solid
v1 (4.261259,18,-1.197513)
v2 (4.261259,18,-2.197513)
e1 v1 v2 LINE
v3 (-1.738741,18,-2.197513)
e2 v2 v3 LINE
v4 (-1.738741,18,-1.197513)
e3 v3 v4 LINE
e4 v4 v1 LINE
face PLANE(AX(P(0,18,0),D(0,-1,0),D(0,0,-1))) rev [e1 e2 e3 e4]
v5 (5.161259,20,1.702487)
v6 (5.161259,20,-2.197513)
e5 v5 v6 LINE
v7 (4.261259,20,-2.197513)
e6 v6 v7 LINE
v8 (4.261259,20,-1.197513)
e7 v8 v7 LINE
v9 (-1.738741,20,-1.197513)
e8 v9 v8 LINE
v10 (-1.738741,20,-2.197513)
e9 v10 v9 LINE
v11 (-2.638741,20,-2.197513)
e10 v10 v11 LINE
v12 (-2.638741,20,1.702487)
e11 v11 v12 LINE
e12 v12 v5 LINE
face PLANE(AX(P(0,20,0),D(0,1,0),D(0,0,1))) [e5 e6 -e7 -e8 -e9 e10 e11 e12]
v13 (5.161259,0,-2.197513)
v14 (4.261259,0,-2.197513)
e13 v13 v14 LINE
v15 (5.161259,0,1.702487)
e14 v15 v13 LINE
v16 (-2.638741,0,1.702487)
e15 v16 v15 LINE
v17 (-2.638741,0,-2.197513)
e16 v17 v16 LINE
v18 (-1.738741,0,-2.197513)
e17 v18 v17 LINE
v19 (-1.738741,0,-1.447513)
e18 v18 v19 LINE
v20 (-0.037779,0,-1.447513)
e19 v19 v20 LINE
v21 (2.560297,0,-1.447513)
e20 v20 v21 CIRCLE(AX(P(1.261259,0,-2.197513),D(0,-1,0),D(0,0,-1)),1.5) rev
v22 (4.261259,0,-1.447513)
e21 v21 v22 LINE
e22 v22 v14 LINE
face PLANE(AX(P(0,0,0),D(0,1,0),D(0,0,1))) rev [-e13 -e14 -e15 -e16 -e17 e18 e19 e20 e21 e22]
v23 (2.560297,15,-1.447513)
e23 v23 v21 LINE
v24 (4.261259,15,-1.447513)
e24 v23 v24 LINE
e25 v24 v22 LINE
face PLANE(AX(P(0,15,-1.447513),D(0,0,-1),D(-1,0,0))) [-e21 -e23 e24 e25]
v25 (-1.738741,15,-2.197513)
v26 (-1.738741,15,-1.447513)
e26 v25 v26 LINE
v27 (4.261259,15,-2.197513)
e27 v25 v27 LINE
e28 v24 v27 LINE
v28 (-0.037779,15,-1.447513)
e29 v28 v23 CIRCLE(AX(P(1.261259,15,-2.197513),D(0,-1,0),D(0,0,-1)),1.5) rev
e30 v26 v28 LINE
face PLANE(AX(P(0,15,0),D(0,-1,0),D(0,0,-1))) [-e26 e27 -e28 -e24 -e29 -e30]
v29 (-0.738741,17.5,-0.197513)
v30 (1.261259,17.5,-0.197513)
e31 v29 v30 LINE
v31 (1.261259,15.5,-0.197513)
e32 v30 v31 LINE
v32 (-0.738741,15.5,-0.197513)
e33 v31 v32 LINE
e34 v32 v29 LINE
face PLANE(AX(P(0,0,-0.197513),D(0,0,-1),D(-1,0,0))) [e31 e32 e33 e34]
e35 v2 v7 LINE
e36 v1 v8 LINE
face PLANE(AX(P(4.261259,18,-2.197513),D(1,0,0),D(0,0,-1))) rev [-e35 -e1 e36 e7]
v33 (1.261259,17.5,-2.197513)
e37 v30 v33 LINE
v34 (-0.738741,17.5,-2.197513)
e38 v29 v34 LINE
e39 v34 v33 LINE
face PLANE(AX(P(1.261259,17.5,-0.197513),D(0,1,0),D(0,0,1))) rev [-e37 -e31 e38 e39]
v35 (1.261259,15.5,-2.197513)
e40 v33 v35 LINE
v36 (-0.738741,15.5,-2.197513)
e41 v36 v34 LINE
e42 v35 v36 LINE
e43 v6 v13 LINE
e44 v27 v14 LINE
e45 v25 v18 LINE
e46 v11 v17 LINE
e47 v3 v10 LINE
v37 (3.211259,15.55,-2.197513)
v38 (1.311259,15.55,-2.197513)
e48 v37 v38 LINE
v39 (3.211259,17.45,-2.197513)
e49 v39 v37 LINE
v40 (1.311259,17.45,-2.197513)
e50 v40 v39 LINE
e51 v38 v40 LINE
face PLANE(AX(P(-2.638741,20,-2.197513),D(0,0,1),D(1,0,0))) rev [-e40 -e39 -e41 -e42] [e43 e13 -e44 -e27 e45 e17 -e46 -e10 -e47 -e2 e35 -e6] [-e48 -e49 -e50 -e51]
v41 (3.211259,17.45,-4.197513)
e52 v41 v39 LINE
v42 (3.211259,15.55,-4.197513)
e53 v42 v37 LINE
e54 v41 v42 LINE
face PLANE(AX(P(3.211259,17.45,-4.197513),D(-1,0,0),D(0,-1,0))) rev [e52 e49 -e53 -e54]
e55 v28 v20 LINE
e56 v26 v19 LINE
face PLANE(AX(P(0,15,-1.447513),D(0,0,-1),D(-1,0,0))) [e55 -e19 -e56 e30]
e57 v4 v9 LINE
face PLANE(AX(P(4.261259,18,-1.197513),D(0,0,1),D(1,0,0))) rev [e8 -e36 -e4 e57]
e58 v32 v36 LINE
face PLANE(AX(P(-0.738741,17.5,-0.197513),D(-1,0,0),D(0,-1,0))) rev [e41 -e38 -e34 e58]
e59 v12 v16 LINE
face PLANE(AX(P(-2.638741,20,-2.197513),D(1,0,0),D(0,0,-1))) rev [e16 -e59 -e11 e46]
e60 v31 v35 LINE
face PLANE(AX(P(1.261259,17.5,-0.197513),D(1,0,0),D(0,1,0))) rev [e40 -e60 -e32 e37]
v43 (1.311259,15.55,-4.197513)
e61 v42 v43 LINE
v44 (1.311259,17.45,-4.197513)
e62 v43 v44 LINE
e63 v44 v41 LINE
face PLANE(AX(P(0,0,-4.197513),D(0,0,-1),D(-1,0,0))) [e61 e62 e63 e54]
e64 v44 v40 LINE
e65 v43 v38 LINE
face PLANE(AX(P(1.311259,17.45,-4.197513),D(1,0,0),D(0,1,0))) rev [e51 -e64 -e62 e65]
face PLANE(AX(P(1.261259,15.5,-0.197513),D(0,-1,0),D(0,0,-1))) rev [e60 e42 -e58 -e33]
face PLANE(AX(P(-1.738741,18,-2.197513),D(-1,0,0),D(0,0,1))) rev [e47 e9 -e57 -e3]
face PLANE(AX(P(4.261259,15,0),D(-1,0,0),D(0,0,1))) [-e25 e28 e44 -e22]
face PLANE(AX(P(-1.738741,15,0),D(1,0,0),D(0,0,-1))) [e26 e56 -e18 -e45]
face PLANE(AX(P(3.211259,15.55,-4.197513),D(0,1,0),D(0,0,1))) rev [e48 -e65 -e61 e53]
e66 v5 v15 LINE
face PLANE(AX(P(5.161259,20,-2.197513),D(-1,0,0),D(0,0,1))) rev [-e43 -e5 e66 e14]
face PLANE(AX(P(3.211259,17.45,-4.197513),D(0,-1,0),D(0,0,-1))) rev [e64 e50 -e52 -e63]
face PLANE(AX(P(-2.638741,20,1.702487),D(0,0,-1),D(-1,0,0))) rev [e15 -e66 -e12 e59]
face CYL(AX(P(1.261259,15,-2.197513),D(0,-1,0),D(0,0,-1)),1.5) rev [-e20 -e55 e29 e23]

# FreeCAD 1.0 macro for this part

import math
import FreeCAD as App
import Part
import Sketcher
from FreeCAD import Vector


def add_polygon(sketch, points):
    """Adds a closed chain of lines whose ends are joined by coincident constraints."""
    first, n = sketch.GeometryCount, len(points)
    for a, b in zip(points, points[1:] + points[:1]):
        sketch.addGeometry(Part.LineSegment(App.Vector(*a, 0), App.Vector(*b, 0)), False)
    for i in range(n):
        sketch.addConstraint(Sketcher.Constraint("Coincident", first + i, 2, first + (i + 1) % n, 1))

doc = App.newDocument("Part")
body = doc.addObject("PartDesign::Body", "Body")

# Sketch on XZ plane
sketch1 = body.newObject("Sketcher::SketchObject", "Sketch")
sketch1.AttachmentSupport = (doc.getObject("XZ_Plane"), [""])
sketch1.MapMode = "FlatFace"
add_polygon(sketch1, [(-2.6, -2.2), (-2.6, 1.7), (5.2, 1.7), (5.2, -2.2)])  # lines 0-3
sketch1.addConstraint([
    Sketcher.Constraint("Vertical", 0),
    Sketcher.Constraint("Horizontal", 1),
    Sketcher.Constraint("Vertical", 2),
    Sketcher.Constraint("Horizontal", 3),
    Sketcher.Constraint("DistanceX", 1, 1, 1, 2, 7.8),
    Sketcher.Constraint("DistanceY", 0, 1, 0, 2, 3.9),
    Sketcher.Constraint("DistanceX", 0, 2, -1, 1, 2.638741),
    Sketcher.Constraint("DistanceY", -1, 1, 0, 2, 1.702487),
])
pad1 = body.newObject("PartDesign::Pad", "Pad")
pad1.Profile = sketch1
pad1.Length = 20
pad1.Reversed = True

# Sketch on XZ plane
sketch2 = body.newObject("Sketcher::SketchObject", "Sketch001")
sketch2.AttachmentSupport = (doc.getObject("XZ_Plane"), [""])
sketch2.MapMode = "FlatFace"
sketch2.addGeometry([
    Part.LineSegment(Vector(4.3, -2.2, 0), Vector(4.3, -1.4, 0)),  # 0
    Part.LineSegment(Vector(4.3, -1.4, 0), Vector(2.6, -1.4, 0)),  # 1
    Part.ArcOfCircle(Part.Circle(Vector(1.3, -2.2, 0), Vector(0, 0, 1), 1.5), math.radians(30), math.radians(150)),  # 2
    Part.LineSegment(Vector(0, -1.4, 0), Vector(-1.7, -1.4, 0)),  # 3
    Part.LineSegment(Vector(-1.7, -1.4, 0), Vector(-1.7, -2.2, 0)),  # 4
    Part.LineSegment(Vector(-1.7, -2.2, 0), Vector(4.3, -2.2, 0)),  # 5
], False)
sketch2.addConstraint([
    Sketcher.Constraint("Coincident", 0, 2, 1, 1),
    Sketcher.Constraint("Coincident", 1, 2, 2, 1),
    Sketcher.Constraint("Coincident", 2, 2, 3, 1),
    Sketcher.Constraint("Coincident", 3, 2, 4, 1),
    Sketcher.Constraint("Coincident", 4, 2, 5, 1),
    Sketcher.Constraint("Coincident", 5, 2, 0, 1),
    Sketcher.Constraint("Vertical", 0),
    Sketcher.Constraint("Horizontal", 1),
    Sketcher.Constraint("Horizontal", 3),
    Sketcher.Constraint("Vertical", 4),
    Sketcher.Constraint("Horizontal", 5),
    Sketcher.Constraint("Horizontal", 1, 2, 2, 2),
    Sketcher.Constraint("Horizontal", 2, 3, 4, 2),
    Sketcher.Constraint("Equal", 1, 3),
    Sketcher.Constraint("Radius", 2, 1.5),
    Sketcher.Constraint("DistanceX", 5, 1, 5, 2, 6.0),
    Sketcher.Constraint("DistanceY", 0, 1, 0, 2, 0.75),
    Sketcher.Constraint("DistanceX", -1, 1, 2, 3, 1.261259),
    Sketcher.Constraint("DistanceY", 2, 3, -1, 1, 2.197513),
])
pocket1 = body.newObject("PartDesign::Pocket", "Pocket")
pocket1.Profile = sketch2
pocket1.Length = 15

# Sketch on XZ plane
sketch3 = body.newObject("Sketcher::SketchObject", "Sketch002")
sketch3.AttachmentSupport = (doc.getObject("XZ_Plane"), [""])
sketch3.MapMode = "FlatFace"
sketch3.AttachmentOffset = App.Placement(Vector(0, 0, -20), App.Rotation())
add_polygon(sketch3, [(-1.7, -2.2), (-1.7, -1.2), (4.3, -1.2), (4.3, -2.2)])  # lines 0-3
sketch3.addConstraint([
    Sketcher.Constraint("Vertical", 0),
    Sketcher.Constraint("Horizontal", 1),
    Sketcher.Constraint("Vertical", 2),
    Sketcher.Constraint("Horizontal", 3),
    Sketcher.Constraint("DistanceX", 1, 1, 1, 2, 6.0),
    Sketcher.Constraint("DistanceY", 0, 1, 0, 2, 1.0),
    Sketcher.Constraint("DistanceX", 0, 2, -1, 1, 1.738741),
    Sketcher.Constraint("DistanceY", 0, 2, -1, 1, 1.197513),
])
pocket2 = body.newObject("PartDesign::Pocket", "Pocket001")
pocket2.Profile = sketch3
pocket2.Length = 2
pocket2.Reversed = True

# Sketch on XY plane
sketch4 = body.newObject("Sketcher::SketchObject", "Sketch003")
sketch4.AttachmentSupport = (doc.getObject("XY_Plane"), [""])
sketch4.MapMode = "FlatFace"
sketch4.AttachmentOffset = App.Placement(Vector(0, 0, -2.197513), App.Rotation())
add_polygon(sketch4, [(3.2, 17.4), (3.2, 15.6), (1.3, 15.6), (1.3, 17.4)])  # lines 0-3
sketch4.addConstraint([
    Sketcher.Constraint("Vertical", 0),
    Sketcher.Constraint("Horizontal", 1),
    Sketcher.Constraint("Vertical", 2),
    Sketcher.Constraint("Horizontal", 3),
    Sketcher.Constraint("Equal", 3, 0),
    Sketcher.Constraint("DistanceX", 1, 2, 1, 1, 1.9),
    Sketcher.Constraint("DistanceY", -1, 1, 0, 2, 15.55),
    Sketcher.Constraint("DistanceX", -1, 1, 0, 2, 3.211259),
])
pad2 = body.newObject("PartDesign::Pad", "Pad001")
pad2.Profile = sketch4
pad2.Length = 2
pad2.Reversed = True

# Sketch on XY plane
sketch5 = body.newObject("Sketcher::SketchObject", "Sketch004")
sketch5.AttachmentSupport = (doc.getObject("XY_Plane"), [""])
sketch5.MapMode = "FlatFace"
sketch5.AttachmentOffset = App.Placement(Vector(0, 0, -2.197513), App.Rotation())
add_polygon(sketch5, [(1.3, 17.5), (1.3, 15.5), (-0.7, 15.5), (-0.7, 17.5)])  # lines 0-3
sketch5.addConstraint([
    Sketcher.Constraint("Vertical", 0),
    Sketcher.Constraint("Horizontal", 1),
    Sketcher.Constraint("Vertical", 2),
    Sketcher.Constraint("Horizontal", 3),
    Sketcher.Constraint("Equal", 3, 0),
    Sketcher.Constraint("DistanceX", 1, 2, 1, 1, 2.0),
    Sketcher.Constraint("DistanceY", -1, 1, 0, 2, 15.5),
    Sketcher.Constraint("DistanceX", -1, 1, 0, 2, 1.261259),
])
pocket3 = body.newObject("PartDesign::Pocket", "Pocket002")
pocket3.Profile = sketch5
pocket3.Length = 2
pocket3.Reversed = True

doc.recompute()
